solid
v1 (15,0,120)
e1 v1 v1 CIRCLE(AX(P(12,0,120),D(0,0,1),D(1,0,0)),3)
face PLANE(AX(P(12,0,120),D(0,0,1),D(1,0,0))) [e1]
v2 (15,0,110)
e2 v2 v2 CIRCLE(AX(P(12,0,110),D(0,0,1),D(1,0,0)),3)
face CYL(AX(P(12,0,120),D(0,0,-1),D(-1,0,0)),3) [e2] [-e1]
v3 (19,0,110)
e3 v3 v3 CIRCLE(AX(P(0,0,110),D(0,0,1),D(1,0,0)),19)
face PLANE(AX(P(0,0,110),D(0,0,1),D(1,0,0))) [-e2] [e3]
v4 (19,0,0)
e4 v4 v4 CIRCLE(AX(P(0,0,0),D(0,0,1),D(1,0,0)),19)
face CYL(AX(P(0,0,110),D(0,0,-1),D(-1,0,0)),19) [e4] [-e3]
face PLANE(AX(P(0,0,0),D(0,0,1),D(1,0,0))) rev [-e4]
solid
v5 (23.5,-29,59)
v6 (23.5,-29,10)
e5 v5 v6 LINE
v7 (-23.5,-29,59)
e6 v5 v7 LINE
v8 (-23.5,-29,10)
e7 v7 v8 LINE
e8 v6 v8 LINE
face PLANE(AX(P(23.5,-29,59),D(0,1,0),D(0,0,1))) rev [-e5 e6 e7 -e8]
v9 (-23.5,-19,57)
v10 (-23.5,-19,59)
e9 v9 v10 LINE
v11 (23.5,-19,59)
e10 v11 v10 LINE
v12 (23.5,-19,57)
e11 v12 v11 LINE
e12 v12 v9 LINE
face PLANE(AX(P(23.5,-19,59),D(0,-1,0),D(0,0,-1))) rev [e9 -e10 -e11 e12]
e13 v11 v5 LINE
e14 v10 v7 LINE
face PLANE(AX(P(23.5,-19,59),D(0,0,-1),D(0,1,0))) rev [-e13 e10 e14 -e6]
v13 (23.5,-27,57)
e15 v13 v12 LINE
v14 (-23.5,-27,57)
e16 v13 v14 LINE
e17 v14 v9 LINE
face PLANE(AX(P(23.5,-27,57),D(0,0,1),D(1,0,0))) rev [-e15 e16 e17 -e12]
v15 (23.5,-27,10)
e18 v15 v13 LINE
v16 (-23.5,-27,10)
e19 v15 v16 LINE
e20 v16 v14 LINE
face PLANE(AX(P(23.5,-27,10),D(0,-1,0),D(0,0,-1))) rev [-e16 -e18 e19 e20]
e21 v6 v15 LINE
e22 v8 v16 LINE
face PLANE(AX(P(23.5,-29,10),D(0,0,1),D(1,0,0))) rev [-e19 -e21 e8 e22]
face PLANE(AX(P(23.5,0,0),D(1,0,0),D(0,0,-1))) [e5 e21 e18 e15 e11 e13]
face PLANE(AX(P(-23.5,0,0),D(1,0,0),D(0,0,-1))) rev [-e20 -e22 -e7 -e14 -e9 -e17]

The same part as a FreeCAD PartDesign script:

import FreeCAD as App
import Part
import Sketcher

V = App.Vector

doc = App.newDocument("Part")
body = doc.addObject("PartDesign::Body", "Body")

# Sketch on XY plane
sketch1 = body.newObject("Sketcher::SketchObject", "Sketch")
sketch1.AttachmentSupport = (doc.getObject("XY_Plane"), [""])
sketch1.MapMode = "FlatFace"
sketch1.addGeometry(Part.Circle(V(0, 0, 0), V(0, 0, 1), 19), False)
sketch1.addConstraint([
    Sketcher.Constraint("Coincident", 0, 3, -1, 1),
    Sketcher.Constraint("Diameter", 0, 38.0),
])
pad1 = body.newObject("PartDesign::Pad", "Pad")
pad1.Profile = sketch1
pad1.Length = 110

# Sketch on XY plane
sketch2 = body.newObject("Sketcher::SketchObject", "Sketch001")
sketch2.AttachmentSupport = (doc.getObject("XY_Plane"), [""])
sketch2.MapMode = "FlatFace"
sketch2.AttachmentOffset = App.Placement(V(0, 0, 110), App.Rotation())
sketch2.addGeometry(Part.Circle(V(12, 0, 0), V(0, 0, 1), 3), False)
sketch2.addConstraint([
    Sketcher.Constraint("PointOnObject", 0, 3, -1),
    Sketcher.Constraint("Diameter", 0, 6.0),
    Sketcher.Constraint("DistanceX", -1, 1, 0, 3, 12.0),
])
pad2 = body.newObject("PartDesign::Pad", "Pad001")
pad2.Profile = sketch2
pad2.Length = 10
body2 = doc.addObject("PartDesign::Body", "Body001")

# Sketch on YZ plane
sketch3 = body2.newObject("Sketcher::SketchObject", "Sketch002")
sketch3.AttachmentSupport = (doc.getObject("YZ_Plane001"), [""])
sketch3.MapMode = "FlatFace"
sketch3.addGeometry([
    Part.LineSegment(V(-19, 59, 0), V(-29, 59, 0)),  # 0
    Part.LineSegment(V(-29, 59, 0), V(-29, 10, 0)),  # 1
    Part.LineSegment(V(-29, 10, 0), V(-27, 10, 0)),  # 2
    Part.LineSegment(V(-27, 10, 0), V(-27, 57, 0)),  # 3
    Part.LineSegment(V(-27, 57, 0), V(-19, 57, 0)),  # 4
    Part.LineSegment(V(-19, 57, 0), V(-19, 59, 0)),  # 5
], False)
sketch3.addConstraint([
    Sketcher.Constraint("Coincident", 0, 2, 1, 1),
    Sketcher.Constraint("Coincident", 1, 2, 2, 1),
    Sketcher.Constraint("Coincident", 2, 2, 3, 1),
    Sketcher.Constraint("Coincident", 3, 2, 4, 1),
    Sketcher.Constraint("Coincident", 4, 2, 5, 1),
    Sketcher.Constraint("Coincident", 5, 2, 0, 1),
    Sketcher.Constraint("Horizontal", 0),
    Sketcher.Constraint("Vertical", 1),
    Sketcher.Constraint("Horizontal", 2),
    Sketcher.Constraint("Vertical", 3),
    Sketcher.Constraint("Horizontal", 4),
    Sketcher.Constraint("Vertical", 5),
    Sketcher.Constraint("Equal", 2, 5),
    Sketcher.Constraint("DistanceX", 0, 2, 0, 1, 10.0),
    Sketcher.Constraint("DistanceX", 2, 1, 2, 2, 2.0),
    Sketcher.Constraint("DistanceY", 1, 2, 1, 1, 49.0),
    Sketcher.Constraint("DistanceX", 0, 2, -1, 1, 29.0),
    Sketcher.Constraint("DistanceY", -1, 1, 0, 2, 59.0),
])
pad3 = body2.newObject("PartDesign::Pad", "Pad002")
pad3.Profile = sketch3
pad3.Type = "TwoLengths"
pad3.Length = 23.5
pad3.Length2 = 23.5

doc.recompute()
